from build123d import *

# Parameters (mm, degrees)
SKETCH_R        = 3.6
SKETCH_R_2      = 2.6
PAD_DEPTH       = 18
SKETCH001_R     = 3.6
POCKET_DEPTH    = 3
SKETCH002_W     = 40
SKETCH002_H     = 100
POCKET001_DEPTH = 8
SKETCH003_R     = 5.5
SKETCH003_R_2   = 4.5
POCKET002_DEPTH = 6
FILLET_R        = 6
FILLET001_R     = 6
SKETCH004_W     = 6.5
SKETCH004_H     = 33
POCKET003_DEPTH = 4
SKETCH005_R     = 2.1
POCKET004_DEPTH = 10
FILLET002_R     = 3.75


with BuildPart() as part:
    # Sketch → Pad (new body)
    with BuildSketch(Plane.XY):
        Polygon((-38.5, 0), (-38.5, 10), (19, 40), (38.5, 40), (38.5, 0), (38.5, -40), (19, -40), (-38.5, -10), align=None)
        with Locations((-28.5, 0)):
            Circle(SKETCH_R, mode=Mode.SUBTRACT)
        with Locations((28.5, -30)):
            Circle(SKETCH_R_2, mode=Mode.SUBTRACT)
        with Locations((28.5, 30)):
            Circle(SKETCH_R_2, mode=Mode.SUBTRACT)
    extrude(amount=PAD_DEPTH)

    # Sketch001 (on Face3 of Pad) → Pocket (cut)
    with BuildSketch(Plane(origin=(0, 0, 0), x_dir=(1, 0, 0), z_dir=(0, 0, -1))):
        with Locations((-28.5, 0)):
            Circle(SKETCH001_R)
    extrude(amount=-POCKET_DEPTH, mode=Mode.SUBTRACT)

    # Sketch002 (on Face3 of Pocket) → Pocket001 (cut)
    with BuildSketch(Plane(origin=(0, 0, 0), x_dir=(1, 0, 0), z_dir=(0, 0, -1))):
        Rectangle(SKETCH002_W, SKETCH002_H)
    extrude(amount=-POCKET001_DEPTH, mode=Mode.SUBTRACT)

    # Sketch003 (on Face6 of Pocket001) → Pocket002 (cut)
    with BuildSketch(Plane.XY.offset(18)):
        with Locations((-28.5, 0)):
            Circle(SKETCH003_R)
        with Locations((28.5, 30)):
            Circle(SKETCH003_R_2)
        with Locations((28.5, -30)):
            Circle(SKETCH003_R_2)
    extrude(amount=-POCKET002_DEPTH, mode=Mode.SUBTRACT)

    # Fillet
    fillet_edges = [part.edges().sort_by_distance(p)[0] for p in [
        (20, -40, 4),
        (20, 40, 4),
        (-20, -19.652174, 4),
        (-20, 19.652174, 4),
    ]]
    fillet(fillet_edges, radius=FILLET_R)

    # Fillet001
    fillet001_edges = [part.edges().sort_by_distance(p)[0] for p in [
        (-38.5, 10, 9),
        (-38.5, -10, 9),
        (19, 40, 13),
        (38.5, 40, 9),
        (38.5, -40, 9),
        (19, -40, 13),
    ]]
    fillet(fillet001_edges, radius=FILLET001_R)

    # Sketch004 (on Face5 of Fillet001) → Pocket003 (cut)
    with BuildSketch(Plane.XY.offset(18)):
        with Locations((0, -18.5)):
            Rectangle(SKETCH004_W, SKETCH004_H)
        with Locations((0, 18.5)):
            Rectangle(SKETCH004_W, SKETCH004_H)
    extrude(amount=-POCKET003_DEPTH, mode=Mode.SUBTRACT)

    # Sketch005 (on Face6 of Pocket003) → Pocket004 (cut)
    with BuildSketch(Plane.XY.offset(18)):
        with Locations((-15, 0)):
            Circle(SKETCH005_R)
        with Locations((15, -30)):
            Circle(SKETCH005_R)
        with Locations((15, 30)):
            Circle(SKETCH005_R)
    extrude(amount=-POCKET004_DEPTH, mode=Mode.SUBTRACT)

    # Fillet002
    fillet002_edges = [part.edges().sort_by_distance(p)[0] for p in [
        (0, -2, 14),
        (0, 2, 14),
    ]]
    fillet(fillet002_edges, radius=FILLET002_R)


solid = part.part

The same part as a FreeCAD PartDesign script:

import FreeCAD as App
import Part
import Sketcher

V = App.Vector
Q = App.Units.Quantity


def edges_at(feature, points):
    """Names of the edges that pass closest to the given points."""
    edges = feature.Shape.Edges
    near = lambda p: min(range(len(edges)), key=lambda i: edges[i].distToShape(Part.Vertex(*p))[0])
    return sorted({f"Edge{near(p) + 1}" for p in points})

doc = App.newDocument("Part")
body = doc.addObject("PartDesign::Body", "Body")

# Sketch on XY plane
sketch1 = body.newObject("Sketcher::SketchObject", "Sketch")
sketch1.AttachmentSupport = (doc.getObject("XY_Plane"), [""])
sketch1.MapMode = "FlatFace"
sketch1.addGeometry([
    Part.LineSegment(V(-38.5, 10, 0), V(-38.5, -10, 0)),  # 0
    Part.LineSegment(V(-38.5, -10, 0), V(19, -40, 0)),  # 1
    Part.LineSegment(V(19, -40, 0), V(38.5, -40, 0)),  # 2
    Part.LineSegment(V(38.5, -40, 0), V(38.5, 40, 0)),  # 3
    Part.LineSegment(V(38.5, 40, 0), V(19, 40, 0)),  # 4
    Part.LineSegment(V(19, 40, 0), V(-38.5, 10, 0)),  # 5
    Part.Circle(V(28.5, -30, 0), V(0, 0, 1), 2.6),  # 6
    Part.Circle(V(28.5, 30, 0), V(0, 0, 1), 2.6),  # 7
    Part.Circle(V(-28.5, 0, 0), V(0, 0, 1), 3.6),  # 8
], False)
sketch1.addConstraint([
    Sketcher.Constraint("Coincident", 0, 2, 1, 1),
    Sketcher.Constraint("Coincident", 1, 2, 2, 1),
    Sketcher.Constraint("Coincident", 2, 2, 3, 1),
    Sketcher.Constraint("Coincident", 3, 2, 4, 1),
    Sketcher.Constraint("Coincident", 4, 2, 5, 1),
    Sketcher.Constraint("Coincident", 5, 2, 0, 1),
    Sketcher.Constraint("Vertical", 0),
    Sketcher.Constraint("Horizontal", 2),
    Sketcher.Constraint("Vertical", 3),
    Sketcher.Constraint("Horizontal", 4),
    Sketcher.Constraint("Equal", 6, 7),
    Sketcher.Constraint("Symmetric", 6, 3, 7, 3, -1),
    Sketcher.Constraint("Symmetric", 1, 2, 4, 2, -1),
    Sketcher.Constraint("PointOnObject", 8, 3, -1),
    Sketcher.Constraint("Equal", 1, 5),
    Sketcher.Constraint("Diameter", 6, Q("5.2 mm")),
    Sketcher.Constraint("Diameter", 8, Q("7.2 mm")),
    Sketcher.Constraint("DistanceY", 0, 2, 0, 1, Q("20 mm")),
    Sketcher.Constraint("DistanceY", 3, 1, 3, 2, Q("80 mm")),
    Sketcher.Constraint("DistanceX", 2, 1, 2, 2, Q("19.5 mm")),
    Sketcher.Constraint("DistanceY", 6, 3, -1, 1, Q("30 mm")),
    Sketcher.Constraint("DistanceX", -1, 1, 1, 2, Q("19 mm")),
    Sketcher.Constraint("DistanceX", 8, 3, 6, 3, Q("57 mm")),
    Sketcher.Constraint("DistanceX", 0, 2, 8, 3, Q("10 mm")),
    Sketcher.Constraint("DistanceX", 6, 3, 2, 2, Q("10 mm")),
])
pad1 = body.newObject("PartDesign::Pad", "Pad")
pad1.Profile = sketch1
pad1.Length = 18

# Sketch on XY plane
sketch2 = body.newObject("Sketcher::SketchObject", "Sketch001")
sketch2.AttachmentSupport = (doc.getObject("XY_Plane"), [""])
sketch2.MapMode = "FlatFace"
sketch2.addGeometry(Part.Circle(V(-28.5, 0, 0), V(0, 0, 1), 3.6), False)
sketch2.addConstraint([
    Sketcher.Constraint("PointOnObject", 0, 3, -1),
    Sketcher.Constraint("Diameter", 0, Q("7.2 mm")),
    Sketcher.Constraint("DistanceX", 0, 3, -1, 1, Q("28.5 mm")),
])
pocket1 = body.newObject("PartDesign::Pocket", "Pocket")
pocket1.Profile = sketch2
pocket1.Length = 3
pocket1.Reversed = True

# Sketch on XY plane
sketch3 = body.newObject("Sketcher::SketchObject", "Sketch002")
sketch3.AttachmentSupport = (doc.getObject("XY_Plane"), [""])
sketch3.MapMode = "FlatFace"
sketch3.addGeometry([
    Part.LineSegment(V(-20, -50, 0), V(-20, 50, 0)),
    Part.LineSegment(V(-20, 50, 0), V(20, 50, 0)),
    Part.LineSegment(V(20, 50, 0), V(20, -50, 0)),
    Part.LineSegment(V(20, -50, 0), V(-20, -50, 0)),
], False)
sketch3.addConstraint([
    Sketcher.Constraint("Coincident", 0, 2, 1, 1),
    Sketcher.Constraint("Coincident", 1, 2, 2, 1),
    Sketcher.Constraint("Coincident", 2, 2, 3, 1),
    Sketcher.Constraint("Coincident", 3, 2, 0, 1),
    Sketcher.Constraint("Vertical", 0),
    Sketcher.Constraint("Horizontal", 1),
    Sketcher.Constraint("Vertical", 2),
    Sketcher.Constraint("Horizontal", 3),
    Sketcher.Constraint("Symmetric", 0, 2, 2, 2, -1, 1),
    Sketcher.Constraint("DistanceX", 1, 1, 1, 2, Q("40 mm")),
    Sketcher.Constraint("DistanceY", 0, 1, 0, 2, Q("100 mm")),
])
pocket2 = body.newObject("PartDesign::Pocket", "Pocket001")
pocket2.Profile = sketch3
pocket2.Length = 8
pocket2.Reversed = True

# Sketch on XY plane
sketch4 = body.newObject("Sketcher::SketchObject", "Sketch003")
sketch4.AttachmentSupport = (doc.getObject("XY_Plane"), [""])
sketch4.MapMode = "FlatFace"
sketch4.AttachmentOffset = App.Placement(V(0, 0, 18), App.Rotation())
sketch4.addGeometry([
    Part.Circle(V(-28.5, 0, 0), V(0, 0, 1), 5.5),
    Part.Circle(V(28.5, 30, 0), V(0, 0, 1), 4.5),
    Part.Circle(V(28.5, -30, 0), V(0, 0, 1), 4.5),
], False)
sketch4.addConstraint([
    Sketcher.Constraint("Equal", 1, 2),
    Sketcher.Constraint("Symmetric", 1, 3, 2, 3, -1),
    Sketcher.Constraint("PointOnObject", 0, 3, -1),
    Sketcher.Constraint("Diameter", 0, Q("11 mm")),
    Sketcher.Constraint("Diameter", 1, Q("9 mm")),
    Sketcher.Constraint("DistanceY", -1, 1, 1, 3, Q("30 mm")),
    Sketcher.Constraint("DistanceX", 0, 3, 1, 3, Q("57 mm")),
    Sketcher.Constraint("DistanceX", 0, 3, -1, 1, Q("28.5 mm")),
])
pocket3 = body.newObject("PartDesign::Pocket", "Pocket002")
pocket3.Profile = sketch4
pocket3.Length = 6
doc.recompute()

fillet = body.newObject("PartDesign::Fillet", "Fillet")
fillet.Base = (pocket3, edges_at(pocket3, [
    (20, -40, 4),
    (20, 40, 4),
    (-20, -19.652, 4),
    (-20, 19.652, 4),
]))
fillet.Radius = 6
doc.recompute()

fillet2 = body.newObject("PartDesign::Fillet", "Fillet001")
fillet2.Base = (fillet, edges_at(fillet, [
    (-38.5, 10, 9),
    (-38.5, -10, 9),
    (19, 40, 13),
    (38.5, 40, 9),
    (38.5, -40, 9),
    (19, -40, 13),
]))
fillet2.Radius = 6

# Sketch on XY plane
sketch5 = body.newObject("Sketcher::SketchObject", "Sketch004")
sketch5.AttachmentSupport = (doc.getObject("XY_Plane"), [""])
sketch5.MapMode = "FlatFace"
sketch5.AttachmentOffset = App.Placement(V(0, 0, 18), App.Rotation())
sketch5.addGeometry([
    Part.LineSegment(V(-3, -2, 0), V(-3, -35, 0)),  # 0
    Part.LineSegment(V(-3, -35, 0), V(3, -35, 0)),  # 1
    Part.LineSegment(V(3, -35, 0), V(3, -2, 0)),  # 2
    Part.LineSegment(V(3, -2, 0), V(-3, -2, 0)),  # 3
    Part.LineSegment(V(-3, 35, 0), V(-3, 2, 0)),  # 4
    Part.LineSegment(V(-3, 2, 0), V(3, 2, 0)),  # 5
    Part.LineSegment(V(3, 2, 0), V(3, 35, 0)),  # 6
    Part.LineSegment(V(3, 35, 0), V(-3, 35, 0)),  # 7
], False)
sketch5.addConstraint([
    Sketcher.Constraint("Coincident", 0, 2, 1, 1),
    Sketcher.Constraint("Coincident", 1, 2, 2, 1),
    Sketcher.Constraint("Coincident", 2, 2, 3, 1),
    Sketcher.Constraint("Coincident", 3, 2, 0, 1),
    Sketcher.Constraint("Coincident", 4, 2, 5, 1),
    Sketcher.Constraint("Coincident", 5, 2, 6, 1),
    Sketcher.Constraint("Coincident", 6, 2, 7, 1),
    Sketcher.Constraint("Coincident", 7, 2, 4, 1),
    Sketcher.Constraint("Vertical", 0),
    Sketcher.Constraint("Horizontal", 1),
    Sketcher.Constraint("Vertical", 2),
    Sketcher.Constraint("Horizontal", 3),
    Sketcher.Constraint("Vertical", 4),
    Sketcher.Constraint("Horizontal", 5),
    Sketcher.Constraint("Vertical", 6),
    Sketcher.Constraint("Horizontal", 7),
    Sketcher.Constraint("Symmetric", 2, 2, 4, 2, -1, 1),
    Sketcher.Constraint("Symmetric", 0, 2, 6, 2, -1, 1),
    Sketcher.Constraint("Vertical", 3, 2, 4, 2),
    Sketcher.Constraint("DistanceY", 0, 2, 0, 1, Q("33 mm")),
    Sketcher.Constraint("DistanceX", 1, 1, 1, 2, Q("6.5 mm")),
    Sketcher.Constraint("DistanceY", 0, 2, -1, 1, Q("35 mm")),
])
pocket4 = body.newObject("PartDesign::Pocket", "Pocket003")
pocket4.Profile = sketch5
pocket4.Length = 4

# Sketch on XY plane
sketch6 = body.newObject("Sketcher::SketchObject", "Sketch005")
sketch6.AttachmentSupport = (doc.getObject("XY_Plane"), [""])
sketch6.MapMode = "FlatFace"
sketch6.AttachmentOffset = App.Placement(V(0, 0, 18), App.Rotation())
sketch6.addGeometry([
    Part.Circle(V(-15, 0, 0), V(0, 0, 1), 2.1),
    Part.Circle(V(15, -30, 0), V(0, 0, 1), 2.1),
    Part.Circle(V(15, 30, 0), V(0, 0, 1), 2.1),
], False)
sketch6.addConstraint([
    Sketcher.Constraint("Equal", 0, 1),
    Sketcher.Constraint("Equal", 1, 2),
    Sketcher.Constraint("Symmetric", 1, 3, 2, 3, -1),
    Sketcher.Constraint("PointOnObject", 0, 3, -1),
    Sketcher.Constraint("Diameter", 0, Q("4.2 mm")),
    Sketcher.Constraint("DistanceX", 0, 3, -1, 1, Q("15 mm")),
    Sketcher.Constraint("DistanceX", -1, 1, 1, 3, Q("15 mm")),
    Sketcher.Constraint("DistanceY", 1, 3, -1, 1, Q("30 mm")),
])
pocket5 = body.newObject("PartDesign::Pocket", "Pocket004")
pocket5.Profile = sketch6
pocket5.Length = 10
doc.recompute()

fillet3 = body.newObject("PartDesign::Fillet", "Fillet002")
fillet3.Base = (pocket5, edges_at(pocket5, [(0, -2, 14), (0, 2, 14)]))
fillet3.Radius = 3.75

doc.recompute()
